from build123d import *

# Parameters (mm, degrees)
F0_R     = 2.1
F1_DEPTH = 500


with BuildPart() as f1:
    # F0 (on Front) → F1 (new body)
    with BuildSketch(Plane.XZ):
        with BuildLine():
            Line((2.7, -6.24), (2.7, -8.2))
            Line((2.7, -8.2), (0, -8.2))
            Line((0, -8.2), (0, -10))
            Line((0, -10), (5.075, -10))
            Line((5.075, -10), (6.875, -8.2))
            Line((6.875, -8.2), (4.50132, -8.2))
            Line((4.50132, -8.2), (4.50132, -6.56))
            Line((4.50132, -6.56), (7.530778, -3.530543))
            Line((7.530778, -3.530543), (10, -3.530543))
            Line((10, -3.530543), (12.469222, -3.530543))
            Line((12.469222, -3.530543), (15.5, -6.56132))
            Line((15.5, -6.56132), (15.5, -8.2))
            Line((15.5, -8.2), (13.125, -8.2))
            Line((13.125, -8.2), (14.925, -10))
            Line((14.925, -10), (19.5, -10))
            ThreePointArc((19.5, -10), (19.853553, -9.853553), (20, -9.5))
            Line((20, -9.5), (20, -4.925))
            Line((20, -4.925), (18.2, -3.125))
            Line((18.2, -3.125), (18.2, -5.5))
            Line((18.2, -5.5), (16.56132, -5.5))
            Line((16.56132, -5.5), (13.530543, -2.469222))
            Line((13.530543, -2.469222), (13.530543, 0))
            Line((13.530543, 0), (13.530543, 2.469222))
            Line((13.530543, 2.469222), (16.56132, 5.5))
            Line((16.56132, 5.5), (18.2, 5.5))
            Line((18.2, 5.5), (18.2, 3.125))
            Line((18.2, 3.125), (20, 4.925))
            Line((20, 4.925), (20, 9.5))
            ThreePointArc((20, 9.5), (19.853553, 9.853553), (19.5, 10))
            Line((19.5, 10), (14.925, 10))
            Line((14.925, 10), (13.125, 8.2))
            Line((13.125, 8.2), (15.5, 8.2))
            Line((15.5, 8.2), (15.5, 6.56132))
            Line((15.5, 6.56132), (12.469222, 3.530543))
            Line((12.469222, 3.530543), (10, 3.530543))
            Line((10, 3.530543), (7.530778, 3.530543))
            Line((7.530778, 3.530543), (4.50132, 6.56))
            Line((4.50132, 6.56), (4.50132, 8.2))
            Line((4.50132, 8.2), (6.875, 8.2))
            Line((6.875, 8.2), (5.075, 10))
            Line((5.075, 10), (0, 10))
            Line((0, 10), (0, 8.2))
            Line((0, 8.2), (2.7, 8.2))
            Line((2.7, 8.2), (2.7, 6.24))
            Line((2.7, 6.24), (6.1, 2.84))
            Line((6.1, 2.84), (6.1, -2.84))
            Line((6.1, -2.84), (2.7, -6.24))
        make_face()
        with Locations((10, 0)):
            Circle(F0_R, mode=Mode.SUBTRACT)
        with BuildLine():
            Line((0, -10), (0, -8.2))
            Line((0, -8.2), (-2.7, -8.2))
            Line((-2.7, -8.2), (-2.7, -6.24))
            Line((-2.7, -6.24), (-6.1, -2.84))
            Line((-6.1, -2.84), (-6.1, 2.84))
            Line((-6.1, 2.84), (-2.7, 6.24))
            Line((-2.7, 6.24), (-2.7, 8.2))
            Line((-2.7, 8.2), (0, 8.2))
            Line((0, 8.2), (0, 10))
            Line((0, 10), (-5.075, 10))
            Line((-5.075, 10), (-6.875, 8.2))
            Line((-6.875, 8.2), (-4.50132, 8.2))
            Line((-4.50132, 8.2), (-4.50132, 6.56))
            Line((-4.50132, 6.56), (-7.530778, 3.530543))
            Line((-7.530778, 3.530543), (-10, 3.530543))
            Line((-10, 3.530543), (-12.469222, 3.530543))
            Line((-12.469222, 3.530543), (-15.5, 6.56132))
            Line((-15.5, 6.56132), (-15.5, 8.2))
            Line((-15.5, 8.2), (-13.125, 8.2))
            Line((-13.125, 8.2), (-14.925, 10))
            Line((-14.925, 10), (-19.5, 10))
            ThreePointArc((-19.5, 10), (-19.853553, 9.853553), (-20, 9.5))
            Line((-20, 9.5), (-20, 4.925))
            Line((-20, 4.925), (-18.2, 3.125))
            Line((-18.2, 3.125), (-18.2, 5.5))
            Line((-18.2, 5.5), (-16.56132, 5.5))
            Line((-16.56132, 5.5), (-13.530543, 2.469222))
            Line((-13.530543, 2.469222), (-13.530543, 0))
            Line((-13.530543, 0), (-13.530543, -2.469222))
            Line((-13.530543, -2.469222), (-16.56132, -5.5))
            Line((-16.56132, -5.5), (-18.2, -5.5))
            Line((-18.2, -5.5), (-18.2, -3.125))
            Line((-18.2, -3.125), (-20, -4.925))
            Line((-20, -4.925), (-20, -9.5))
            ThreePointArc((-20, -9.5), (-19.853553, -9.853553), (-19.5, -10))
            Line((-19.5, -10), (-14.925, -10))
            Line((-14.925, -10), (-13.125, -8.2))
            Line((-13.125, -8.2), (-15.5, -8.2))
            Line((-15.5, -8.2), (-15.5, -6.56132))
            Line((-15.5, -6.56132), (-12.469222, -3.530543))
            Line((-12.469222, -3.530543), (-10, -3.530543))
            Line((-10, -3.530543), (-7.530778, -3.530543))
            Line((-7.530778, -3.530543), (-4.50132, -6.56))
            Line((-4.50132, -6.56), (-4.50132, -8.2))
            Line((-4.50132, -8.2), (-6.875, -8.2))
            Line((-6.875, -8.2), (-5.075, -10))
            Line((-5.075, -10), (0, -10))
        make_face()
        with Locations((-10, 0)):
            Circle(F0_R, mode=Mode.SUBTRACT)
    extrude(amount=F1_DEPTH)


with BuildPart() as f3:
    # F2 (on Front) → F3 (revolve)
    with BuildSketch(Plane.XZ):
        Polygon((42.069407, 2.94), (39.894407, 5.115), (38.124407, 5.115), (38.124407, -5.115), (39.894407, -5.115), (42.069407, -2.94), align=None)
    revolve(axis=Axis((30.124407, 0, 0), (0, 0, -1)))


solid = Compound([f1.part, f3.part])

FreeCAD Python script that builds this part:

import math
import FreeCAD as App
import Part
import Sketcher

V = App.Vector

doc = App.newDocument("Part")
params = doc.addObject("Spreadsheet::Sheet", "Params")
for row, (alias, value) in enumerate([
    ("sketch1_diameter", "4.2 mm"),
    ("sketch1_radius", "0.500001 mm"),
    ("sketch1_width", "5.4 mm"),
    ("sketch1_width2", "10.15 mm"),
    ("sketch1_height", "1.64 mm"),
    ("pad1_length", "500 mm"),
    ("sketch2_width", "1.77 mm"),
    ("sketch2_height", "10.23 mm"),
    ("sketch2_height2", "5.88 mm"),
    ("revolution_angle", "360 deg"),
], start=1):
    params.set(f"A{row}", alias)
    params.set(f"B{row}", "=" + value)
    params.setAlias(f"B{row}", alias)

body = doc.addObject("PartDesign::Body", "Body")

# Sketch on XZ plane
sketch1 = body.newObject("Sketcher::SketchObject", "Sketch")
sketch1.AttachmentSupport = (doc.getObject("XZ_Plane"), [""])
sketch1.MapMode = "FlatFace"
sketch1.addGeometry([
    Part.LineSegment(V(5.075, -10, 0), V(6.875, -8.2, 0)),  # 0
    Part.LineSegment(V(6.875, -8.2, 0), V(4.50132, -8.2, 0)),  # 1
    Part.LineSegment(V(4.50132, -8.2, 0), V(4.50132, -6.56, 0)),  # 2
    Part.LineSegment(V(4.50132, -6.56, 0), V(7.530778, -3.530543, 0)),  # 3
    Part.LineSegment(V(7.530778, -3.530543, 0), V(12.469222, -3.530543, 0)),  # 4
    Part.LineSegment(V(12.469222, -3.530543, 0), V(15.5, -6.56132, 0)),  # 5
    Part.LineSegment(V(15.5, -6.56132, 0), V(15.5, -8.2, 0)),  # 6
    Part.LineSegment(V(15.5, -8.2, 0), V(13.125, -8.2, 0)),  # 7
    Part.LineSegment(V(13.125, -8.2, 0), V(14.925, -10, 0)),  # 8
    Part.LineSegment(V(14.925, -10, 0), V(19.5, -10, 0)),  # 9
    Part.ArcOfCircle(Part.Circle(V(19.499999, -9.499999, 0), V(0, 0, 1), 0.500001), math.radians(-89.999847), math.radians(-0.000153)),  # 10
    Part.LineSegment(V(20, -9.5, 0), V(20, -4.925, 0)),  # 11
    Part.LineSegment(V(20, -4.925, 0), V(18.2, -3.125, 0)),  # 12
    Part.LineSegment(V(18.2, -3.125, 0), V(18.2, -5.5, 0)),  # 13
    Part.LineSegment(V(18.2, -5.5, 0), V(16.56132, -5.5, 0)),  # 14
    Part.LineSegment(V(16.56132, -5.5, 0), V(13.530543, -2.469222, 0)),  # 15
    Part.LineSegment(V(13.530543, -2.469222, 0), V(13.530543, 2.469222, 0)),  # 16
    Part.LineSegment(V(13.530543, 2.469222, 0), V(16.56132, 5.5, 0)),  # 17
    Part.LineSegment(V(16.56132, 5.5, 0), V(18.2, 5.5, 0)),  # 18
    Part.LineSegment(V(18.2, 5.5, 0), V(18.2, 3.125, 0)),  # 19
    Part.LineSegment(V(18.2, 3.125, 0), V(20, 4.925, 0)),  # 20
    Part.LineSegment(V(20, 4.925, 0), V(20, 9.5, 0)),  # 21
    Part.ArcOfCircle(Part.Circle(V(19.499999, 9.499999, 0), V(0, 0, 1), 0.500001), math.radians(0.000153), math.radians(89.999847)),  # 22
    Part.LineSegment(V(19.5, 10, 0), V(14.925, 10, 0)),  # 23
    Part.LineSegment(V(14.925, 10, 0), V(13.125, 8.2, 0)),  # 24
    Part.LineSegment(V(13.125, 8.2, 0), V(15.5, 8.2, 0)),  # 25
    Part.LineSegment(V(15.5, 8.2, 0), V(15.5, 6.56132, 0)),  # 26
    Part.LineSegment(V(15.5, 6.56132, 0), V(12.469222, 3.530543, 0)),  # 27
    Part.LineSegment(V(12.469222, 3.530543, 0), V(7.530778, 3.530543, 0)),  # 28
    Part.LineSegment(V(7.530778, 3.530543, 0), V(4.50132, 6.56, 0)),  # 29
    Part.LineSegment(V(4.50132, 6.56, 0), V(4.50132, 8.2, 0)),  # 30
    Part.LineSegment(V(4.50132, 8.2, 0), V(6.875, 8.2, 0)),  # 31
    Part.LineSegment(V(6.875, 8.2, 0), V(5.075, 10, 0)),  # 32
    Part.LineSegment(V(5.075, 10, 0), V(-5.075, 10, 0)),  # 33
    Part.LineSegment(V(-5.075, 10, 0), V(-6.875, 8.2, 0)),  # 34
    Part.LineSegment(V(-6.875, 8.2, 0), V(-4.50132, 8.2, 0)),  # 35
    Part.LineSegment(V(-4.50132, 8.2, 0), V(-4.50132, 6.56, 0)),  # 36
    Part.LineSegment(V(-4.50132, 6.56, 0), V(-7.530778, 3.530543, 0)),  # 37
    Part.LineSegment(V(-7.530778, 3.530543, 0), V(-12.469222, 3.530543, 0)),  # 38
    Part.LineSegment(V(-12.469222, 3.530543, 0), V(-15.5, 6.56132, 0)),  # 39
    Part.LineSegment(V(-15.5, 6.56132, 0), V(-15.5, 8.2, 0)),  # 40
    Part.LineSegment(V(-15.5, 8.2, 0), V(-13.125, 8.2, 0)),  # 41
    Part.LineSegment(V(-13.125, 8.2, 0), V(-14.925, 10, 0)),  # 42
    Part.LineSegment(V(-14.925, 10, 0), V(-19.5, 10, 0)),  # 43
    Part.ArcOfCircle(Part.Circle(V(-19.499999, 9.499999, 0), V(0, 0, 1), 0.500001), math.radians(90.000153), math.radians(179.999847)),  # 44
    Part.LineSegment(V(-20, 9.5, 0), V(-20, 4.925, 0)),  # 45
    Part.LineSegment(V(-20, 4.925, 0), V(-18.2, 3.125, 0)),  # 46
    Part.LineSegment(V(-18.2, 3.125, 0), V(-18.2, 5.5, 0)),  # 47
    Part.LineSegment(V(-18.2, 5.5, 0), V(-16.56132, 5.5, 0)),  # 48
    Part.LineSegment(V(-16.56132, 5.5, 0), V(-13.530543, 2.469222, 0)),  # 49
    Part.LineSegment(V(-13.530543, 2.469222, 0), V(-13.530543, -2.469222, 0)),  # 50
    Part.LineSegment(V(-13.530543, -2.469222, 0), V(-16.56132, -5.5, 0)),  # 51
    Part.LineSegment(V(-16.56132, -5.5, 0), V(-18.2, -5.5, 0)),  # 52
    Part.LineSegment(V(-18.2, -5.5, 0), V(-18.2, -3.125, 0)),  # 53
    Part.LineSegment(V(-18.2, -3.125, 0), V(-20, -4.925, 0)),  # 54
    Part.LineSegment(V(-20, -4.925, 0), V(-20, -9.5, 0)),  # 55
    Part.ArcOfCircle(Part.Circle(V(-19.499999, -9.499999, 0), V(0, 0, 1), 0.500001), math.radians(-179.999847), math.radians(-90.000153)),  # 56
    Part.LineSegment(V(-19.5, -10, 0), V(-14.925, -10, 0)),  # 57
    Part.LineSegment(V(-14.925, -10, 0), V(-13.125, -8.2, 0)),  # 58
    Part.LineSegment(V(-13.125, -8.2, 0), V(-15.5, -8.2, 0)),  # 59
    Part.LineSegment(V(-15.5, -8.2, 0), V(-15.5, -6.56132, 0)),  # 60
    Part.LineSegment(V(-15.5, -6.56132, 0), V(-12.469222, -3.530543, 0)),  # 61
    Part.LineSegment(V(-12.469222, -3.530543, 0), V(-7.530778, -3.530543, 0)),  # 62
    Part.LineSegment(V(-7.530778, -3.530543, 0), V(-4.50132, -6.56, 0)),  # 63
    Part.LineSegment(V(-4.50132, -6.56, 0), V(-4.50132, -8.2, 0)),  # 64
    Part.LineSegment(V(-4.50132, -8.2, 0), V(-6.875, -8.2, 0)),  # 65
    Part.LineSegment(V(-6.875, -8.2, 0), V(-5.075, -10, 0)),  # 66
    Part.LineSegment(V(-5.075, -10, 0), V(5.075, -10, 0)),  # 67
    Part.Circle(V(-10, 0, 0), V(0, 0, 1), 2.1),  # 68
    Part.LineSegment(V(2.7, -6.24, 0), V(2.7, -8.2, 0)),  # 69
    Part.LineSegment(V(2.7, -8.2, 0), V(-2.7, -8.2, 0)),  # 70
    Part.LineSegment(V(-2.7, -8.2, 0), V(-2.7, -6.24, 0)),  # 71
    Part.LineSegment(V(-2.7, -6.24, 0), V(-6.1, -2.84, 0)),  # 72
    Part.LineSegment(V(-6.1, -2.84, 0), V(-6.1, 2.84, 0)),  # 73
    Part.LineSegment(V(-6.1, 2.84, 0), V(-2.7, 6.24, 0)),  # 74
    Part.LineSegment(V(-2.7, 6.24, 0), V(-2.7, 8.2, 0)),  # 75
    Part.LineSegment(V(-2.7, 8.2, 0), V(2.7, 8.2, 0)),  # 76
    Part.LineSegment(V(2.7, 8.2, 0), V(2.7, 6.24, 0)),  # 77
    Part.LineSegment(V(2.7, 6.24, 0), V(6.1, 2.84, 0)),  # 78
    Part.LineSegment(V(6.1, 2.84, 0), V(6.1, -2.84, 0)),  # 79
    Part.LineSegment(V(6.1, -2.84, 0), V(2.7, -6.24, 0)),  # 80
    Part.Circle(V(10, 0, 0), V(0, 0, 1), 2.1),  # 81
], False)
sketch1.addConstraint([
    Sketcher.Constraint("Coincident", 0, 2, 1, 1),
    Sketcher.Constraint("Coincident", 1, 2, 2, 1),
    Sketcher.Constraint("Coincident", 2, 2, 3, 1),
    Sketcher.Constraint("Coincident", 3, 2, 4, 1),
    Sketcher.Constraint("Coincident", 4, 2, 5, 1),
    Sketcher.Constraint("Coincident", 5, 2, 6, 1),
    Sketcher.Constraint("Coincident", 6, 2, 7, 1),
    Sketcher.Constraint("Coincident", 7, 2, 8, 1),
    Sketcher.Constraint("Coincident", 8, 2, 9, 1),
    Sketcher.Constraint("Coincident", 9, 2, 10, 1),
    Sketcher.Constraint("Coincident", 10, 2, 11, 1),
    Sketcher.Constraint("Coincident", 11, 2, 12, 1),
    Sketcher.Constraint("Coincident", 12, 2, 13, 1),
    Sketcher.Constraint("Coincident", 13, 2, 14, 1),
    Sketcher.Constraint("Coincident", 14, 2, 15, 1),
    Sketcher.Constraint("Coincident", 15, 2, 16, 1),
    Sketcher.Constraint("Coincident", 16, 2, 17, 1),
    Sketcher.Constraint("Coincident", 17, 2, 18, 1),
    Sketcher.Constraint("Coincident", 18, 2, 19, 1),
    Sketcher.Constraint("Coincident", 19, 2, 20, 1),
    Sketcher.Constraint("Coincident", 20, 2, 21, 1),
    Sketcher.Constraint("Coincident", 21, 2, 22, 1),
    Sketcher.Constraint("Coincident", 22, 2, 23, 1),
    Sketcher.Constraint("Coincident", 23, 2, 24, 1),
    Sketcher.Constraint("Coincident", 24, 2, 25, 1),
    Sketcher.Constraint("Coincident", 25, 2, 26, 1),
    Sketcher.Constraint("Coincident", 26, 2, 27, 1),
    Sketcher.Constraint("Coincident", 27, 2, 28, 1),
    Sketcher.Constraint("Coincident", 28, 2, 29, 1),
    Sketcher.Constraint("Coincident", 29, 2, 30, 1),
    Sketcher.Constraint("Coincident", 30, 2, 31, 1),
    Sketcher.Constraint("Coincident", 31, 2, 32, 1),
    Sketcher.Constraint("Coincident", 32, 2, 33, 1),
    Sketcher.Constraint("Coincident", 33, 2, 34, 1),
    Sketcher.Constraint("Coincident", 34, 2, 35, 1),
    Sketcher.Constraint("Coincident", 35, 2, 36, 1),
    Sketcher.Constraint("Coincident", 36, 2, 37, 1),
    Sketcher.Constraint("Coincident", 37, 2, 38, 1),
    Sketcher.Constraint("Coincident", 38, 2, 39, 1),
    Sketcher.Constraint("Coincident", 39, 2, 40, 1),
    Sketcher.Constraint("Coincident", 40, 2, 41, 1),
    Sketcher.Constraint("Coincident", 41, 2, 42, 1),
    Sketcher.Constraint("Coincident", 42, 2, 43, 1),
    Sketcher.Constraint("Coincident", 43, 2, 44, 1),
    Sketcher.Constraint("Coincident", 44, 2, 45, 1),
    Sketcher.Constraint("Coincident", 45, 2, 46, 1),
    Sketcher.Constraint("Coincident", 46, 2, 47, 1),
    Sketcher.Constraint("Coincident", 47, 2, 48, 1),
    Sketcher.Constraint("Coincident", 48, 2, 49, 1),
    Sketcher.Constraint("Coincident", 49, 2, 50, 1),
    Sketcher.Constraint("Coincident", 50, 2, 51, 1),
    Sketcher.Constraint("Coincident", 51, 2, 52, 1),
    Sketcher.Constraint("Coincident", 52, 2, 53, 1),
    Sketcher.Constraint("Coincident", 53, 2, 54, 1),
    Sketcher.Constraint("Coincident", 54, 2, 55, 1),
    Sketcher.Constraint("Coincident", 55, 2, 56, 1),
    Sketcher.Constraint("Coincident", 56, 2, 57, 1),
    Sketcher.Constraint("Coincident", 57, 2, 58, 1),
    Sketcher.Constraint("Coincident", 58, 2, 59, 1),
    Sketcher.Constraint("Coincident", 59, 2, 60, 1),
    Sketcher.Constraint("Coincident", 60, 2, 61, 1),
    Sketcher.Constraint("Coincident", 61, 2, 62, 1),
    Sketcher.Constraint("Coincident", 62, 2, 63, 1),
    Sketcher.Constraint("Coincident", 63, 2, 64, 1),
    Sketcher.Constraint("Coincident", 64, 2, 65, 1),
    Sketcher.Constraint("Coincident", 65, 2, 66, 1),
    Sketcher.Constraint("Coincident", 66, 2, 67, 1),
    Sketcher.Constraint("Coincident", 67, 2, 0, 1),
    Sketcher.Constraint("Coincident", 69, 2, 70, 1),
    Sketcher.Constraint("Coincident", 70, 2, 71, 1),
    Sketcher.Constraint("Coincident", 71, 2, 72, 1),
    Sketcher.Constraint("Coincident", 72, 2, 73, 1),
    Sketcher.Constraint("Coincident", 73, 2, 74, 1),
    Sketcher.Constraint("Coincident", 74, 2, 75, 1),
    Sketcher.Constraint("Coincident", 75, 2, 76, 1),
    Sketcher.Constraint("Coincident", 76, 2, 77, 1),
    Sketcher.Constraint("Coincident", 77, 2, 78, 1),
    Sketcher.Constraint("Coincident", 78, 2, 79, 1),
    Sketcher.Constraint("Coincident", 79, 2, 80, 1),
    Sketcher.Constraint("Coincident", 80, 2, 69, 1),
    Sketcher.Constraint("Horizontal", 1),
    Sketcher.Constraint("Vertical", 2),
    Sketcher.Constraint("Horizontal", 4),
    Sketcher.Constraint("Vertical", 6),
    Sketcher.Constraint("Horizontal", 7),
    Sketcher.Constraint("Horizontal", 9),
    Sketcher.Constraint("Vertical", 11),
    Sketcher.Constraint("Vertical", 13),
    Sketcher.Constraint("Horizontal", 14),
    Sketcher.Constraint("Vertical", 16),
    Sketcher.Constraint("Horizontal", 18),
    Sketcher.Constraint("Vertical", 19),
    Sketcher.Constraint("Vertical", 21),
    Sketcher.Constraint("Horizontal", 23),
    Sketcher.Constraint("Horizontal", 25),
    Sketcher.Constraint("Vertical", 26),
    Sketcher.Constraint("Horizontal", 28),
    Sketcher.Constraint("Vertical", 30),
    Sketcher.Constraint("Horizontal", 31),
    Sketcher.Constraint("Horizontal", 33),
    Sketcher.Constraint("Horizontal", 35),
    Sketcher.Constraint("Vertical", 36),
    Sketcher.Constraint("Horizontal", 38),
    Sketcher.Constraint("Vertical", 40),
    Sketcher.Constraint("Horizontal", 41),
    Sketcher.Constraint("Horizontal", 43),
    Sketcher.Constraint("Vertical", 45),
    Sketcher.Constraint("Vertical", 47),
    Sketcher.Constraint("Horizontal", 48),
    Sketcher.Constraint("Vertical", 50),
    Sketcher.Constraint("Horizontal", 52),
    Sketcher.Constraint("Vertical", 53),
    Sketcher.Constraint("Vertical", 55),
    Sketcher.Constraint("Horizontal", 57),
    Sketcher.Constraint("Horizontal", 59),
    Sketcher.Constraint("Vertical", 60),
    Sketcher.Constraint("Horizontal", 62),
    Sketcher.Constraint("Vertical", 64),
    Sketcher.Constraint("Horizontal", 65),
    Sketcher.Constraint("Horizontal", 67),
    Sketcher.Constraint("Vertical", 69),
    Sketcher.Constraint("Horizontal", 70),
    Sketcher.Constraint("Vertical", 71),
    Sketcher.Constraint("Vertical", 73),
    Sketcher.Constraint("Vertical", 75),
    Sketcher.Constraint("Horizontal", 76),
    Sketcher.Constraint("Vertical", 77),
    Sketcher.Constraint("Vertical", 79),
    Sketcher.Constraint("Equal", 10, 22),
    Sketcher.Constraint("Equal", 22, 44),
    Sketcher.Constraint("Equal", 44, 56),
    Sketcher.Constraint("Equal", 68, 81),
    Sketcher.Constraint("Symmetric", 10, 3, 44, 3, -1, 1),
    Sketcher.Constraint("Symmetric", 22, 3, 56, 3, -1, 1),
    Sketcher.Constraint("Symmetric", 68, 3, 81, 3, -1, 1),
    Sketcher.Constraint("Symmetric", 0, 2, 34, 2, -1, 1),
    Sketcher.Constraint("Symmetric", 2, 2, 36, 2, -1, 1),
    Sketcher.Constraint("Symmetric", 3, 2, 37, 2, -1, 1),
    Sketcher.Constraint("Symmetric", 5, 2, 39, 2, -1, 1),
    Sketcher.Constraint("Symmetric", 7, 2, 41, 2, -1, 1),
    Sketcher.Constraint("Symmetric", 12, 2, 46, 2, -1, 1),
    Sketcher.Constraint("Symmetric", 14, 2, 48, 2, -1, 1),
    Sketcher.Constraint("Symmetric", 15, 2, 49, 2, -1, 1),
    Sketcher.Constraint("Symmetric", 17, 2, 51, 2, -1, 1),
    Sketcher.Constraint("Symmetric", 19, 2, 53, 2, -1, 1),
    Sketcher.Constraint("Symmetric", 24, 2, 58, 2, -1, 1),
    Sketcher.Constraint("Symmetric", 26, 2, 60, 2, -1, 1),
    Sketcher.Constraint("Symmetric", 27, 2, 61, 2, -1, 1),
    Sketcher.Constraint("Symmetric", 29, 2, 63, 2, -1, 1),
    Sketcher.Constraint("Symmetric", 31, 2, 65, 2, -1, 1),
    Sketcher.Constraint("Symmetric", 32, 2, 66, 2, -1, 1),
    Sketcher.Constraint("Symmetric", 69, 2, 75, 2, -1, 1),
    Sketcher.Constraint("Symmetric", 71, 2, 77, 2, -1, 1),
    Sketcher.Constraint("Symmetric", 72, 2, 78, 2, -1, 1),
    Sketcher.Constraint("Symmetric", 22, 3, 44, 3, -2),
    Sketcher.Constraint("Symmetric", 31, 2, 34, 2, -2),
    Sketcher.Constraint("Symmetric", 29, 2, 36, 2, -2),
    Sketcher.Constraint("Symmetric", 28, 2, 37, 2, -2),
    Sketcher.Constraint("Symmetric", 26, 2, 39, 2, -2),
    Sketcher.Constraint("Symmetric", 24, 2, 41, 2, -2),
    Sketcher.Constraint("Symmetric", 19, 2, 46, 2, -2),
    Sketcher.Constraint("Symmetric", 17, 2, 48, 2, -2),
    Sketcher.Constraint("Symmetric", 74, 2, 77, 2, -2),
    Sketcher.Constraint("PointOnObject", 68, 3, -1),
    Sketcher.Constraint("Parallel", 0, 3),
    Sketcher.Constraint("Perpendicular", 3, 5),
    Sketcher.Constraint("Parallel", 5, 8),
    Sketcher.Constraint("Parallel", 8, 12),
    Sketcher.Constraint("Parallel", 12, 15),
    Sketcher.Constraint("Perpendicular", 15, 17),
    Sketcher.Constraint("Parallel", 17, 20),
    Sketcher.Constraint("Parallel", 20, 24),
    Sketcher.Constraint("Parallel", 24, 27),
    Sketcher.Constraint("Perpendicular", 27, 29),
    Sketcher.Constraint("Parallel", 29, 32),
    Sketcher.Constraint("Perpendicular", 32, 34),
    Sketcher.Constraint("Perpendicular", 37, 39),
    Sketcher.Constraint("Parallel", 39, 42),
    Sketcher.Constraint("Parallel", 42, 46),
    Sketcher.Constraint("Perpendicular", 49, 51),
    Sketcher.Constraint("Parallel", 51, 54),
    Sketcher.Constraint("Parallel", 54, 58),
    Sketcher.Constraint("Perpendicular", 61, 63),
    Sketcher.Constraint("Parallel", 66, 72),
    Sketcher.Constraint("Perpendicular", 72, 74),
    Sketcher.Constraint("Perpendicular", 78, 80),
    Sketcher.Constraint("Horizontal", 1, 2, 6, 2),
    Sketcher.Constraint("Horizontal", 56, 3, 10, 2),
    Sketcher.Constraint("Horizontal", 44, 3, 21, 2),
    Sketcher.Constraint("Horizontal", 23, 2, 32, 2),
    Sketcher.Constraint("Horizontal", 21, 2, 44, 2),
    Sketcher.Constraint("Horizontal", 10, 2, 55, 2),
    Sketcher.Constraint("Horizontal", 65, 2, 69, 2),
    Sketcher.Constraint("Horizontal", 72, 2, 79, 2),
    Sketcher.Constraint("Vertical", 22, 3, 9, 2),
    Sketcher.Constraint("Vertical", 9, 2, 22, 2),
    Sketcher.Constraint("Vertical", 56, 3, 43, 2),
    Sketcher.Constraint("Vertical", 43, 2, 56, 2),
    Sketcher.Constraint("Equal", 52, 6),
    Sketcher.Constraint("Equal", 57, 11),
    Sketcher.Constraint("Equal", 59, 13),
    Sketcher.Constraint("Equal", 62, 16),
    Sketcher.Constraint("Equal", 8, 12),
    Sketcher.Constraint("Equal", 5, 15),
    Sketcher.Constraint("Diameter", 68, 4.2),
    Sketcher.Constraint("Radius", 10, 0.500001),
    Sketcher.Constraint("DistanceX", 70, 2, 70, 1, 5.4),
    Sketcher.Constraint("DistanceX", 68, 3, -1, 1, 10.0),
    Sketcher.Constraint("DistanceY", 8, 2, -1, 1, 10.0),
    Sketcher.Constraint("DistanceX", -1, 1, 10, 2, 20.0),
    Sketcher.Constraint("DistanceX", 33, 2, 33, 1, 10.15),
    Sketcher.Constraint("DistanceY", 2, 1, 2, 2, 1.64),
    Sketcher.Constraint("DistanceY", 69, 2, 69, 1, 1.96),
    Sketcher.Constraint("DistanceY", 73, 1, 73, 2, 5.68),
    Sketcher.Constraint("DistanceY", 0, 2, -1, 1, 8.2),
    Sketcher.Constraint("DistanceX", -1, 1, 5, 2, 15.5),
    Sketcher.Constraint("DistanceX", 7, 2, 7, 1, 2.375),
    Sketcher.Constraint("Distance", 3, 4.2843),
    Sketcher.Constraint("DistanceX", 1, 2, 1, 1, 2.37368),
])
sketch1.setExpression("Constraints[204]", "Params.sketch1_diameter")
sketch1.setExpression("Constraints[205]", "Params.sketch1_radius")
sketch1.setExpression("Constraints[206]", "Params.sketch1_width")
sketch1.setExpression("Constraints[210]", "Params.sketch1_width2")
sketch1.setExpression("Constraints[211]", "Params.sketch1_height")
pad1 = body.newObject("PartDesign::Pad", "Pad")
pad1.Profile = sketch1
pad1.setExpression("Length", "Params.pad1_length")
body2 = doc.addObject("PartDesign::Body", "Body001")

# Sketch on XZ plane
sketch2 = body2.newObject("Sketcher::SketchObject", "Sketch001")
sketch2.AttachmentSupport = (doc.getObject("XZ_Plane001"), [""])
sketch2.MapMode = "FlatFace"
sketch2.addGeometry([
    Part.LineSegment(V(42.069407, 2.94, 0), V(39.894407, 5.115, 0)),  # 0
    Part.LineSegment(V(39.894407, 5.115, 0), V(38.124407, 5.115, 0)),  # 1
    Part.LineSegment(V(38.124407, 5.115, 0), V(38.124407, -5.115, 0)),  # 2
    Part.LineSegment(V(38.124407, -5.115, 0), V(39.894407, -5.115, 0)),  # 3
    Part.LineSegment(V(39.894407, -5.115, 0), V(42.069407, -2.94, 0)),  # 4
    Part.LineSegment(V(42.069407, -2.94, 0), V(42.069407, 2.94, 0)),  # 5
], False)
sketch2.addGeometry(Part.LineSegment(V(30.124407, 5.115, 0), V(30.124407, -5.115, 0)), True)  # axis
sketch2.addConstraint([
    Sketcher.Constraint("Coincident", 0, 2, 1, 1),
    Sketcher.Constraint("Coincident", 1, 2, 2, 1),
    Sketcher.Constraint("Coincident", 2, 2, 3, 1),
    Sketcher.Constraint("Coincident", 3, 2, 4, 1),
    Sketcher.Constraint("Coincident", 4, 2, 5, 1),
    Sketcher.Constraint("Coincident", 5, 2, 0, 1),
    Sketcher.Constraint("Horizontal", 1),
    Sketcher.Constraint("Vertical", 2),
    Sketcher.Constraint("Horizontal", 3),
    Sketcher.Constraint("Vertical", 5),
    Sketcher.Constraint("Vertical", 6),
    Sketcher.Constraint("Symmetric", 0, 2, 3, 2, -1),
    Sketcher.Constraint("Perpendicular", 0, 4),
    Sketcher.Constraint("Horizontal", 1, 2, 6, 1),
    Sketcher.Constraint("Horizontal", 3, 2, 6, 2),
    Sketcher.Constraint("Equal", 0, 4),
    Sketcher.Constraint("DistanceX", 6, 1, 1, 2, 8.0),
    Sketcher.Constraint("DistanceX", 1, 2, 1, 1, 1.77),
    Sketcher.Constraint("DistanceY", 2, 2, 2, 1, 10.23),
    Sketcher.Constraint("DistanceY", 5, 1, 5, 2, 5.88),
    Sketcher.Constraint("DistanceX", -1, 1, 0, 2, 39.894407),
])
sketch2.setExpression("Constraints[17]", "Params.sketch2_width")
sketch2.setExpression("Constraints[18]", "Params.sketch2_height")
sketch2.setExpression("Constraints[19]", "Params.sketch2_height2")
revolution = body2.newObject("PartDesign::Revolution", "Revolution")
revolution.Profile = sketch2
revolution.ReferenceAxis = (sketch2, ["Axis0"])
revolution.setExpression("Angle", "Params.revolution_angle")

doc.recompute()
